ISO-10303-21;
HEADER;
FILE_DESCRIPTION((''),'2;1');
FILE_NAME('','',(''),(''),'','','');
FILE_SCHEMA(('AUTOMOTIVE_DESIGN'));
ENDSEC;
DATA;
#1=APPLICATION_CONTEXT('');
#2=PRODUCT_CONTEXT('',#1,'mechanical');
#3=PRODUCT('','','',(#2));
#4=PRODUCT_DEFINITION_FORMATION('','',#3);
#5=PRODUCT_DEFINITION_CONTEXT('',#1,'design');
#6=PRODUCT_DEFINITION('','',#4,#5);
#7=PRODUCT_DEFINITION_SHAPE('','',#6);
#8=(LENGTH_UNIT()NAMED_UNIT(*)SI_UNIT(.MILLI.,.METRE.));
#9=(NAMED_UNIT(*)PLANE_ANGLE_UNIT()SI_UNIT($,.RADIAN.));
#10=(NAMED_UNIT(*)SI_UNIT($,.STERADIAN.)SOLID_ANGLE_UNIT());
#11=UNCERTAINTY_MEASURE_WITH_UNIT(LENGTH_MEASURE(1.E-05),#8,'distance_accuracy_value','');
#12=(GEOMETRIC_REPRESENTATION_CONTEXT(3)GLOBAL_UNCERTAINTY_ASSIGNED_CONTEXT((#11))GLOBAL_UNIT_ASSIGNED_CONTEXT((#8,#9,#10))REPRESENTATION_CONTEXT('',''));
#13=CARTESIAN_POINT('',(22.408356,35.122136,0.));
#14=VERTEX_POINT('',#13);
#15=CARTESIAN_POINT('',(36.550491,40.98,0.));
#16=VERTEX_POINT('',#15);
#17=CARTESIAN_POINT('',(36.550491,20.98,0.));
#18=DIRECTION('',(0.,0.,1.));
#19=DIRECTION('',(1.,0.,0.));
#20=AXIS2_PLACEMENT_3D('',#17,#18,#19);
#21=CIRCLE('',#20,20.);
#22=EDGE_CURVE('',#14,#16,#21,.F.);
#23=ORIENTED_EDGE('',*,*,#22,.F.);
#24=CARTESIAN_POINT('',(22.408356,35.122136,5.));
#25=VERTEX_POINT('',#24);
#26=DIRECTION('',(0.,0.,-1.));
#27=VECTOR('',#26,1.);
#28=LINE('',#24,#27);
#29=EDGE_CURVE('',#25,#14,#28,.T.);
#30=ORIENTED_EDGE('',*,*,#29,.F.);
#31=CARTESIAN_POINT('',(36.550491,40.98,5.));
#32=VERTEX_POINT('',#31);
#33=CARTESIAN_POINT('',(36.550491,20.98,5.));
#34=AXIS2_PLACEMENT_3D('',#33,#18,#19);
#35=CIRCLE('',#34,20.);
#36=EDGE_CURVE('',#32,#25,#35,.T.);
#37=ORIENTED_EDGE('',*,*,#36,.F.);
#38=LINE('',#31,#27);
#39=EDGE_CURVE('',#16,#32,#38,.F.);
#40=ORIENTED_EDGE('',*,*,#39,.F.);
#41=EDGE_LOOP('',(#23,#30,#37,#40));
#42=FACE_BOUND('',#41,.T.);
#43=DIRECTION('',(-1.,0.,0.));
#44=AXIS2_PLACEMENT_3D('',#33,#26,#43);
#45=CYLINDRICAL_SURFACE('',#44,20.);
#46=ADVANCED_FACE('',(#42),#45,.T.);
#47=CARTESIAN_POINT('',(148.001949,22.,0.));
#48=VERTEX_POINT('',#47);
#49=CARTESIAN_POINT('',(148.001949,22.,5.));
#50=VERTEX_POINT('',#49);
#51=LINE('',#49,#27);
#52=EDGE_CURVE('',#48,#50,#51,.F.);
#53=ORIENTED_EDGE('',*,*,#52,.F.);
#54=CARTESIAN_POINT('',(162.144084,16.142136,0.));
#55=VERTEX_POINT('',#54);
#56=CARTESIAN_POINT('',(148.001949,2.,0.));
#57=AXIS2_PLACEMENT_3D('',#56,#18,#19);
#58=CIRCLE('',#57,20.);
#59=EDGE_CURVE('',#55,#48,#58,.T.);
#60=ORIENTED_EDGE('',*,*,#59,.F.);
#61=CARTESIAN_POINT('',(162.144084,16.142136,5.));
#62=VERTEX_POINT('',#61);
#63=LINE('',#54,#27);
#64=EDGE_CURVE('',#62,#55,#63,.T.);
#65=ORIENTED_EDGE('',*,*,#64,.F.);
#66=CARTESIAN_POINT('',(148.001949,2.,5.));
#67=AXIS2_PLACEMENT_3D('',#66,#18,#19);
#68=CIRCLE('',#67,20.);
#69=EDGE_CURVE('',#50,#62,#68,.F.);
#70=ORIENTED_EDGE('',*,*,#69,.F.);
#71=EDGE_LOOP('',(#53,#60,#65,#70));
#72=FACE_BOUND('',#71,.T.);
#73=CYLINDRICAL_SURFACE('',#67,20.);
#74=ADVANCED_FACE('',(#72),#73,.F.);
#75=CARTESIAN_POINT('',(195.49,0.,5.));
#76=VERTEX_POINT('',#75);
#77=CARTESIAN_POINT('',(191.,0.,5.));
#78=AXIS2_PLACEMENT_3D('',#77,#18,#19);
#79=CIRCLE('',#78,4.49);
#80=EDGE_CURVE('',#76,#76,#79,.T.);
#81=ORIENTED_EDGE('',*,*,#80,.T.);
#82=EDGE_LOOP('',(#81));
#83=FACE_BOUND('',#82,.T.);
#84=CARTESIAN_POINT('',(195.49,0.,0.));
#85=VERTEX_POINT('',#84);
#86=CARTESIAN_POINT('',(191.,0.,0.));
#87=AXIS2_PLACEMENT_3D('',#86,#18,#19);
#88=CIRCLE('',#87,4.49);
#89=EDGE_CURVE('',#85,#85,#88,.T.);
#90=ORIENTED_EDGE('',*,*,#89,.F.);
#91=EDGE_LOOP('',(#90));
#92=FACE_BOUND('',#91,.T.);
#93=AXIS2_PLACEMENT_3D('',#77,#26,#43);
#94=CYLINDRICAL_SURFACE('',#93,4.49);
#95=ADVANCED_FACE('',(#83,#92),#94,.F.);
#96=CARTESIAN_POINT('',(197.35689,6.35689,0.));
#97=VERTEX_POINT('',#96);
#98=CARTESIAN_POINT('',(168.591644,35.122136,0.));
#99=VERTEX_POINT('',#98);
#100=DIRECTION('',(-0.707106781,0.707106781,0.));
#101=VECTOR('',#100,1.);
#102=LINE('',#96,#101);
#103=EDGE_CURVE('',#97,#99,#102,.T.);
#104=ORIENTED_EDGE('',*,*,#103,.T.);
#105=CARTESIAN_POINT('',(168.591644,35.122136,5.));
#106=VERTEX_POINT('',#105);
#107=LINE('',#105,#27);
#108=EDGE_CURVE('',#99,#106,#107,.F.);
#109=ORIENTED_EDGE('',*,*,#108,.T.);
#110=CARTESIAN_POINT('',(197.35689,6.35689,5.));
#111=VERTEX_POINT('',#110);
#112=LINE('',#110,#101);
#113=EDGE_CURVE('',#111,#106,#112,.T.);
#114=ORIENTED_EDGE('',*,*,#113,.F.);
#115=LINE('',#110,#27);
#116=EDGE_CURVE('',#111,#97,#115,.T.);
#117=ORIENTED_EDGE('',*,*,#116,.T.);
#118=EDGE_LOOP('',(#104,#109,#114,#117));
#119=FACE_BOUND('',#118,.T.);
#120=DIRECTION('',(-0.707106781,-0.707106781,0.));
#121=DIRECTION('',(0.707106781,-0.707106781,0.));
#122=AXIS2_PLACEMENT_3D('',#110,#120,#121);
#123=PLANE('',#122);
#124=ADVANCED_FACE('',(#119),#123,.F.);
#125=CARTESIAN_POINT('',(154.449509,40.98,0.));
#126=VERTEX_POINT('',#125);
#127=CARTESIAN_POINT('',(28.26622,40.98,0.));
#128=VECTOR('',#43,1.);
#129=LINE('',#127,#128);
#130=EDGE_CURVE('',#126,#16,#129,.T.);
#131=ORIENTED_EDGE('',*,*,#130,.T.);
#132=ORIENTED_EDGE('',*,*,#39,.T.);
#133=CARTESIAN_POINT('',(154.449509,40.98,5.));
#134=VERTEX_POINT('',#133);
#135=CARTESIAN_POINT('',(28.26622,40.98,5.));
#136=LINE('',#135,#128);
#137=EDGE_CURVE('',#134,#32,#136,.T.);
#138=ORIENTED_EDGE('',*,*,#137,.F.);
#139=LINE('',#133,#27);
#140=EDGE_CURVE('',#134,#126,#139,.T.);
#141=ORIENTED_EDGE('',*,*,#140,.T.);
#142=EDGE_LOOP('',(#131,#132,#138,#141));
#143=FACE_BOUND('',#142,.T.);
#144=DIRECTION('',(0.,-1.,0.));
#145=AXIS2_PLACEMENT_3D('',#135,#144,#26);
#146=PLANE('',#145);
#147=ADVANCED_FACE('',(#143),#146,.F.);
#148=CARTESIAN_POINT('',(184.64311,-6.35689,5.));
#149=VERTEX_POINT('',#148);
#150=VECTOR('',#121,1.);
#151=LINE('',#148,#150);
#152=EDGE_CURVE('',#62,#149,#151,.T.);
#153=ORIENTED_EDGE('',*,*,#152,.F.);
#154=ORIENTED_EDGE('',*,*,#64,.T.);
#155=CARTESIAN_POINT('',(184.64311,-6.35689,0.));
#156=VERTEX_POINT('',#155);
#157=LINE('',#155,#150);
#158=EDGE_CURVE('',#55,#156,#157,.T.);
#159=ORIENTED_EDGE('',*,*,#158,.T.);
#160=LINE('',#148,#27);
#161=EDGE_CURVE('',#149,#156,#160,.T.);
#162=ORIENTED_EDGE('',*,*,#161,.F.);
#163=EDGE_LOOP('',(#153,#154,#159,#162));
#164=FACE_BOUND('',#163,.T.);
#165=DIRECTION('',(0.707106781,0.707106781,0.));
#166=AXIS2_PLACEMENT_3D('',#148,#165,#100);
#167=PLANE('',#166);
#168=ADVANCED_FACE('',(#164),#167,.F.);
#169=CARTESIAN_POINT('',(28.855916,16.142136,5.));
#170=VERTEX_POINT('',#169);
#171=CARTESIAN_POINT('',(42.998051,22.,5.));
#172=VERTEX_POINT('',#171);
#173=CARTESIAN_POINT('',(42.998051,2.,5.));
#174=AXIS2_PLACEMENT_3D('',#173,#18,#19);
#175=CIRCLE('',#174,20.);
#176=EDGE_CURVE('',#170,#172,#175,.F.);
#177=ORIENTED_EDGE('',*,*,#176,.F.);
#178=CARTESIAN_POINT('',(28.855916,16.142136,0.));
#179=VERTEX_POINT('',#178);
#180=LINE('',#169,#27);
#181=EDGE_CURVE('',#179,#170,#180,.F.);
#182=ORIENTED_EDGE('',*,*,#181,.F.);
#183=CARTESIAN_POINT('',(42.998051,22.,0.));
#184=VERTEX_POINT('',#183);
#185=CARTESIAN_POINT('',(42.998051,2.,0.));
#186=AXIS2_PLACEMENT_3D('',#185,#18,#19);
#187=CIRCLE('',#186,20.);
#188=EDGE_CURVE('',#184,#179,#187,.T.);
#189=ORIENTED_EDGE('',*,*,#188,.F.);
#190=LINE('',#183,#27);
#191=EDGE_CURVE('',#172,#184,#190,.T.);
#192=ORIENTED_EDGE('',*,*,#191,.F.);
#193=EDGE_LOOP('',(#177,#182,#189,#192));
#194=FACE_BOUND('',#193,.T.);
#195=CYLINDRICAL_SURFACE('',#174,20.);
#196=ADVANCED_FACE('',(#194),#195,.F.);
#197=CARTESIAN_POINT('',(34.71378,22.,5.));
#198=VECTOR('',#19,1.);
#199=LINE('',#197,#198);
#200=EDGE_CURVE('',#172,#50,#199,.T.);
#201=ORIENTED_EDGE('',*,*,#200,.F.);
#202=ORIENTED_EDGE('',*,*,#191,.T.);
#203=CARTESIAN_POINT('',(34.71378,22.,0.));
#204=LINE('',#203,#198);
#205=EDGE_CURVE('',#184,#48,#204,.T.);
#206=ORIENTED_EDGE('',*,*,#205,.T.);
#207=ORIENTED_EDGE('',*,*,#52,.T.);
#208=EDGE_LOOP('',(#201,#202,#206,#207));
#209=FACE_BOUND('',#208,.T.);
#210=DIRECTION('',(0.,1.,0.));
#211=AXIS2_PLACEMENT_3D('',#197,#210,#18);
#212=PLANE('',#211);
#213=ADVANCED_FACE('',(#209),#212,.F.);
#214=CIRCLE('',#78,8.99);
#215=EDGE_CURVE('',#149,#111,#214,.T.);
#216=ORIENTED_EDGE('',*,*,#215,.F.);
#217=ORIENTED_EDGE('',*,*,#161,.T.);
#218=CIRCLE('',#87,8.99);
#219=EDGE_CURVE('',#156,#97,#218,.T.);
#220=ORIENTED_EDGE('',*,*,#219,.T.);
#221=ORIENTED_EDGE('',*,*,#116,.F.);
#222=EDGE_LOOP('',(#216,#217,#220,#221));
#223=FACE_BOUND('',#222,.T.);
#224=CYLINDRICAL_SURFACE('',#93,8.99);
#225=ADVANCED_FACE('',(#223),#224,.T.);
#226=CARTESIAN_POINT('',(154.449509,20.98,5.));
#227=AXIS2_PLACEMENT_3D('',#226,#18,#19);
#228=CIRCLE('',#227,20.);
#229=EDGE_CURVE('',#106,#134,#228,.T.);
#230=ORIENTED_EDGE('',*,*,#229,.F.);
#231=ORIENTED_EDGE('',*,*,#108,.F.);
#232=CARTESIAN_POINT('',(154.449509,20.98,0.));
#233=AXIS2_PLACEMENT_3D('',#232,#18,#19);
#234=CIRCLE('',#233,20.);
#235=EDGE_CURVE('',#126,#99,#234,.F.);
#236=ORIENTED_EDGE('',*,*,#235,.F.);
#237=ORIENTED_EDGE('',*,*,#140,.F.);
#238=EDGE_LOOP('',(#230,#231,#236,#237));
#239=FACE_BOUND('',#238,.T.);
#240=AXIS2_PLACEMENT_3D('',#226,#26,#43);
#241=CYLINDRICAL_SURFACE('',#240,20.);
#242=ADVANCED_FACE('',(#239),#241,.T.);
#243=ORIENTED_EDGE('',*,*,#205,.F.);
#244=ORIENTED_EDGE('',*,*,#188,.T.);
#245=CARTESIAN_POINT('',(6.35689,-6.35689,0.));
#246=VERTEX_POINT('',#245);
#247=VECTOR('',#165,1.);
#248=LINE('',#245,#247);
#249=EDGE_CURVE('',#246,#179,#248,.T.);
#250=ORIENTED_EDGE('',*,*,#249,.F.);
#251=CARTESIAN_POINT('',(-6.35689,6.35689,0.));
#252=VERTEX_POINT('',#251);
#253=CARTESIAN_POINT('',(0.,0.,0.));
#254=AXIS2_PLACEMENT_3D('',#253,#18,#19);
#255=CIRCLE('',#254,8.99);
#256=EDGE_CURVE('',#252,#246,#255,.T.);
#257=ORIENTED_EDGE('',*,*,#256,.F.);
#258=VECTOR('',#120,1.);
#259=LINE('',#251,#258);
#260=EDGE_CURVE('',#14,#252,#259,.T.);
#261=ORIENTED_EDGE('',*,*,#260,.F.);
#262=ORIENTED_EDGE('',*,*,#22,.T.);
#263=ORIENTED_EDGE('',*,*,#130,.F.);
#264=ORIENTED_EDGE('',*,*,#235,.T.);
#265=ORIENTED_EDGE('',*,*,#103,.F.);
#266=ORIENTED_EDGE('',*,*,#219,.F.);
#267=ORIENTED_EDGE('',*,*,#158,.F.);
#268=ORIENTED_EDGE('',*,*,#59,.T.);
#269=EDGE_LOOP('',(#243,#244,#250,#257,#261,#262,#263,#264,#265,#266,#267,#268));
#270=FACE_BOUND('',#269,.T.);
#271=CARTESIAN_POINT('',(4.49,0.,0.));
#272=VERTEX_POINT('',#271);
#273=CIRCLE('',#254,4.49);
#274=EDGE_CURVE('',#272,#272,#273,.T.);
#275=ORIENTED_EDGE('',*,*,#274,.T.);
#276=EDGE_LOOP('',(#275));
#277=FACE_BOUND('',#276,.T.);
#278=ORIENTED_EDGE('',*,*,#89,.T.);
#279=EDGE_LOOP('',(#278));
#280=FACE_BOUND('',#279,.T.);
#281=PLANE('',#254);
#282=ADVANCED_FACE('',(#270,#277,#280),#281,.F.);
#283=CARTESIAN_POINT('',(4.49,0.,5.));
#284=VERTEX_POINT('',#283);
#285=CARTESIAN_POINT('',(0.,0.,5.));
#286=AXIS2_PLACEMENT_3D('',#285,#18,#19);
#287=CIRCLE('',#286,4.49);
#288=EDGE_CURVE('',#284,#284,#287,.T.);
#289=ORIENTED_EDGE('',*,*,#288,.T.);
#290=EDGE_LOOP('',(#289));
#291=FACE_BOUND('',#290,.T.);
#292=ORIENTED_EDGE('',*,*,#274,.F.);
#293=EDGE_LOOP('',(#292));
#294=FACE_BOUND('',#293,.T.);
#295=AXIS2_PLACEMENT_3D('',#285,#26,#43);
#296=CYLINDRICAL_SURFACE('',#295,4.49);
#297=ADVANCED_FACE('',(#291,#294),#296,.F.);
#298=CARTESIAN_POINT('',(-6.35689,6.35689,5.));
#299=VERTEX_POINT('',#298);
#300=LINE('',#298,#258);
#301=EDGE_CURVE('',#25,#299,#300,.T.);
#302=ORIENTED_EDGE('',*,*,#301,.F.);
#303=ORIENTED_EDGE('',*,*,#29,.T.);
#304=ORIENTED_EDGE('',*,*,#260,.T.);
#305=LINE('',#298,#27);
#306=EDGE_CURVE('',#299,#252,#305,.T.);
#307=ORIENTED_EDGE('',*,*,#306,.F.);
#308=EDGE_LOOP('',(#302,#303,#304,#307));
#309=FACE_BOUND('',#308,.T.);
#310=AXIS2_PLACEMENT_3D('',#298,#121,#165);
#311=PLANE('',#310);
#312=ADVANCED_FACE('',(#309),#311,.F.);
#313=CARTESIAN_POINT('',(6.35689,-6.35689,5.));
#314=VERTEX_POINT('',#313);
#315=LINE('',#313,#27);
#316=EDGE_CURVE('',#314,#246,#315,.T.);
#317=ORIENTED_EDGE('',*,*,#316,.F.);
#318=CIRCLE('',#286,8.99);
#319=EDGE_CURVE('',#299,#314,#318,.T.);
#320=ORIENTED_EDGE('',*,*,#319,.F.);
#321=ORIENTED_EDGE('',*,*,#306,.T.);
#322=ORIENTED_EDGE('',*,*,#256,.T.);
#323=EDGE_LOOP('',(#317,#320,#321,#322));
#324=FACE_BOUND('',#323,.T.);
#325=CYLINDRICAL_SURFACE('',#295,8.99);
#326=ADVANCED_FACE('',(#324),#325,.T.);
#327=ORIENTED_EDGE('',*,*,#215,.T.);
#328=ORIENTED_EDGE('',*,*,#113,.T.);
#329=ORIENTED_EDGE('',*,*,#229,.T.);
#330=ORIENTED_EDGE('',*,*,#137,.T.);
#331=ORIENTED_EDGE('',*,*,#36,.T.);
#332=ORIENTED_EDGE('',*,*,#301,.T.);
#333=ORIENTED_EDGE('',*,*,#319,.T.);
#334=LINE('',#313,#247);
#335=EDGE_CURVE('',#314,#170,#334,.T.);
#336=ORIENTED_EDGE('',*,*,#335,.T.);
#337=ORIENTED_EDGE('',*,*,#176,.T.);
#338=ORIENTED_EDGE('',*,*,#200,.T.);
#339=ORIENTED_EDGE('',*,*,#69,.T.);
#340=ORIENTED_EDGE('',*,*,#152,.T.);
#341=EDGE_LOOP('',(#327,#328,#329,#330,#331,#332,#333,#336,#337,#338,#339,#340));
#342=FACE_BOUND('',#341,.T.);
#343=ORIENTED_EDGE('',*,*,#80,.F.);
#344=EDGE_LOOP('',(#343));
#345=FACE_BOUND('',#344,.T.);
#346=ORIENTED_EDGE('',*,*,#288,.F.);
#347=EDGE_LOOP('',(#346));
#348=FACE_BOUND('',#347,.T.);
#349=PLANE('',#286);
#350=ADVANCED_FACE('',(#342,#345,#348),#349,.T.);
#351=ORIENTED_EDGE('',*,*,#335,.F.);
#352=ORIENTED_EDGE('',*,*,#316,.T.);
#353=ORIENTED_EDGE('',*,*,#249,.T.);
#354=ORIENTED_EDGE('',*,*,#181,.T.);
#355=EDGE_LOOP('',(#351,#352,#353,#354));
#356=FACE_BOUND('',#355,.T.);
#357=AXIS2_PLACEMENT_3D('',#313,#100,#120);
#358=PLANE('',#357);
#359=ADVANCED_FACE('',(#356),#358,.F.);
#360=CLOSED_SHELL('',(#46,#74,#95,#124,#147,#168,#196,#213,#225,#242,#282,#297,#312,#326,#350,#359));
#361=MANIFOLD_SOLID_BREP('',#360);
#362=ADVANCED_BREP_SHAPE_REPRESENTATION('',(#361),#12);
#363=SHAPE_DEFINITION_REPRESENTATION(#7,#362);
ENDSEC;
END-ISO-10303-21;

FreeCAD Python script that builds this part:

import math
import FreeCAD as App
import Part
import Sketcher

V = App.Vector


def edges_at(feature, points):
    """Names of the edges that pass closest to the given points."""
    edges = feature.Shape.Edges
    near = lambda p: min(range(len(edges)), key=lambda i: edges[i].distToShape(Part.Vertex(*p))[0])
    return sorted({f"Edge{near(p) + 1}" for p in points})

doc = App.newDocument("Part")
body = doc.addObject("PartDesign::Body", "Body")

# Sketch on XY plane
sketch1 = doc.addObject("Sketcher::SketchObject", "Sketch")
body.addObject(sketch1)
sketch1.AttachmentSupport = (doc.XY_Plane, [""])
sketch1.MapMode = "FlatFace"
sketch1.addGeometry([
    Part.LineSegment(V(28.26622, 40.98, 0), V(-6.35689, 6.35689, 0)),  # 0
    Part.ArcOfCircle(Part.Circle(V(0, 0, 0), V(0, 0, 1), 8.99), math.radians(135), math.radians(315)),  # 1
    Part.LineSegment(V(6.35689, -6.35689, 0), V(34.71378, 22, 0)),  # 2
    Part.LineSegment(V(34.71378, 22, 0), V(156.28622, 22, 0)),  # 3
    Part.LineSegment(V(156.28622, 22, 0), V(184.64311, -6.35689, 0)),  # 4
    Part.ArcOfCircle(Part.Circle(V(191, 0, 0), V(0, 0, 1), 8.99), math.radians(-135), math.radians(45)),  # 5
    Part.LineSegment(V(197.35689, 6.35689, 0), V(162.73378, 40.98, 0)),  # 6
    Part.LineSegment(V(162.73378, 40.98, 0), V(28.26622, 40.98, 0)),  # 7
    Part.Circle(V(191, 0, 0), V(0, 0, 1), 4.49),  # 8
    Part.Circle(V(0, 0, 0), V(0, 0, 1), 4.49),  # 9
], False)
sketch1.addConstraint([
    Sketcher.Constraint("Tangent", 0, 2, 1, 1),
    Sketcher.Constraint("Tangent", 1, 2, 2, 1),
    Sketcher.Constraint("Coincident", 2, 2, 3, 1),
    Sketcher.Constraint("Coincident", 3, 2, 4, 1),
    Sketcher.Constraint("Tangent", 4, 2, 5, 1),
    Sketcher.Constraint("Tangent", 5, 2, 6, 1),
    Sketcher.Constraint("Coincident", 6, 2, 7, 1),
    Sketcher.Constraint("Coincident", 7, 2, 0, 1),
    Sketcher.Constraint("Horizontal", 3),
    Sketcher.Constraint("Horizontal", 7),
    Sketcher.Constraint("Coincident", 1, 3, -1, 1),
    Sketcher.Constraint("Coincident", 9, 3, -1, 1),
    Sketcher.Constraint("Coincident", 8, 3, 5, 3),
    Sketcher.Constraint("Equal", 1, 5),
    Sketcher.Constraint("Equal", 8, 9),
    Sketcher.Constraint("PointOnObject", 5, 3, -1),
    Sketcher.Constraint("Parallel", 0, 2),
    Sketcher.Constraint("Perpendicular", 2, 4),
    Sketcher.Constraint("Parallel", 4, 6),
    Sketcher.Constraint("Horizontal", 1, 2, 4, 2),
    Sketcher.Constraint("Diameter", 8, 8.98),
    Sketcher.Constraint("Radius", 1, 8.99),
    Sketcher.Constraint("DistanceX", -1, 1, 5, 3, 191.0),
    Sketcher.Constraint("DistanceY", -1, 1, 2, 2, 22.0),
    Sketcher.Constraint("DistanceY", -1, 1, 6, 2, 40.98),
])
pad1 = doc.addObject("PartDesign::Pad", "Pad")
body.addObject(pad1)
pad1.Profile = sketch1
pad1.Length = 5
doc.recompute()

fillet = doc.addObject("PartDesign::Fillet", "Fillet")
body.addObject(fillet)
fillet.Base = (pad1, edges_at(pad1, [(28.266, 40.98, 2.5)]))
fillet.Radius = 20
doc.recompute()

fillet2 = doc.addObject("PartDesign::Fillet", "Fillet001")
body.addObject(fillet2)
fillet2.Base = (fillet, edges_at(fillet, [(34.714, 22, 2.5)]))
fillet2.Radius = 20
doc.recompute()

fillet3 = doc.addObject("PartDesign::Fillet", "Fillet002")
body.addObject(fillet3)
fillet3.Base = (fillet2, edges_at(fillet2, [(162.734, 40.98, 2.5)]))
fillet3.Radius = 20
doc.recompute()

fillet4 = doc.addObject("PartDesign::Fillet", "Fillet003")
body.addObject(fillet4)
fillet4.Base = (fillet3, edges_at(fillet3, [(156.286, 22, 2.5)]))
fillet4.Radius = 20

doc.recompute()
